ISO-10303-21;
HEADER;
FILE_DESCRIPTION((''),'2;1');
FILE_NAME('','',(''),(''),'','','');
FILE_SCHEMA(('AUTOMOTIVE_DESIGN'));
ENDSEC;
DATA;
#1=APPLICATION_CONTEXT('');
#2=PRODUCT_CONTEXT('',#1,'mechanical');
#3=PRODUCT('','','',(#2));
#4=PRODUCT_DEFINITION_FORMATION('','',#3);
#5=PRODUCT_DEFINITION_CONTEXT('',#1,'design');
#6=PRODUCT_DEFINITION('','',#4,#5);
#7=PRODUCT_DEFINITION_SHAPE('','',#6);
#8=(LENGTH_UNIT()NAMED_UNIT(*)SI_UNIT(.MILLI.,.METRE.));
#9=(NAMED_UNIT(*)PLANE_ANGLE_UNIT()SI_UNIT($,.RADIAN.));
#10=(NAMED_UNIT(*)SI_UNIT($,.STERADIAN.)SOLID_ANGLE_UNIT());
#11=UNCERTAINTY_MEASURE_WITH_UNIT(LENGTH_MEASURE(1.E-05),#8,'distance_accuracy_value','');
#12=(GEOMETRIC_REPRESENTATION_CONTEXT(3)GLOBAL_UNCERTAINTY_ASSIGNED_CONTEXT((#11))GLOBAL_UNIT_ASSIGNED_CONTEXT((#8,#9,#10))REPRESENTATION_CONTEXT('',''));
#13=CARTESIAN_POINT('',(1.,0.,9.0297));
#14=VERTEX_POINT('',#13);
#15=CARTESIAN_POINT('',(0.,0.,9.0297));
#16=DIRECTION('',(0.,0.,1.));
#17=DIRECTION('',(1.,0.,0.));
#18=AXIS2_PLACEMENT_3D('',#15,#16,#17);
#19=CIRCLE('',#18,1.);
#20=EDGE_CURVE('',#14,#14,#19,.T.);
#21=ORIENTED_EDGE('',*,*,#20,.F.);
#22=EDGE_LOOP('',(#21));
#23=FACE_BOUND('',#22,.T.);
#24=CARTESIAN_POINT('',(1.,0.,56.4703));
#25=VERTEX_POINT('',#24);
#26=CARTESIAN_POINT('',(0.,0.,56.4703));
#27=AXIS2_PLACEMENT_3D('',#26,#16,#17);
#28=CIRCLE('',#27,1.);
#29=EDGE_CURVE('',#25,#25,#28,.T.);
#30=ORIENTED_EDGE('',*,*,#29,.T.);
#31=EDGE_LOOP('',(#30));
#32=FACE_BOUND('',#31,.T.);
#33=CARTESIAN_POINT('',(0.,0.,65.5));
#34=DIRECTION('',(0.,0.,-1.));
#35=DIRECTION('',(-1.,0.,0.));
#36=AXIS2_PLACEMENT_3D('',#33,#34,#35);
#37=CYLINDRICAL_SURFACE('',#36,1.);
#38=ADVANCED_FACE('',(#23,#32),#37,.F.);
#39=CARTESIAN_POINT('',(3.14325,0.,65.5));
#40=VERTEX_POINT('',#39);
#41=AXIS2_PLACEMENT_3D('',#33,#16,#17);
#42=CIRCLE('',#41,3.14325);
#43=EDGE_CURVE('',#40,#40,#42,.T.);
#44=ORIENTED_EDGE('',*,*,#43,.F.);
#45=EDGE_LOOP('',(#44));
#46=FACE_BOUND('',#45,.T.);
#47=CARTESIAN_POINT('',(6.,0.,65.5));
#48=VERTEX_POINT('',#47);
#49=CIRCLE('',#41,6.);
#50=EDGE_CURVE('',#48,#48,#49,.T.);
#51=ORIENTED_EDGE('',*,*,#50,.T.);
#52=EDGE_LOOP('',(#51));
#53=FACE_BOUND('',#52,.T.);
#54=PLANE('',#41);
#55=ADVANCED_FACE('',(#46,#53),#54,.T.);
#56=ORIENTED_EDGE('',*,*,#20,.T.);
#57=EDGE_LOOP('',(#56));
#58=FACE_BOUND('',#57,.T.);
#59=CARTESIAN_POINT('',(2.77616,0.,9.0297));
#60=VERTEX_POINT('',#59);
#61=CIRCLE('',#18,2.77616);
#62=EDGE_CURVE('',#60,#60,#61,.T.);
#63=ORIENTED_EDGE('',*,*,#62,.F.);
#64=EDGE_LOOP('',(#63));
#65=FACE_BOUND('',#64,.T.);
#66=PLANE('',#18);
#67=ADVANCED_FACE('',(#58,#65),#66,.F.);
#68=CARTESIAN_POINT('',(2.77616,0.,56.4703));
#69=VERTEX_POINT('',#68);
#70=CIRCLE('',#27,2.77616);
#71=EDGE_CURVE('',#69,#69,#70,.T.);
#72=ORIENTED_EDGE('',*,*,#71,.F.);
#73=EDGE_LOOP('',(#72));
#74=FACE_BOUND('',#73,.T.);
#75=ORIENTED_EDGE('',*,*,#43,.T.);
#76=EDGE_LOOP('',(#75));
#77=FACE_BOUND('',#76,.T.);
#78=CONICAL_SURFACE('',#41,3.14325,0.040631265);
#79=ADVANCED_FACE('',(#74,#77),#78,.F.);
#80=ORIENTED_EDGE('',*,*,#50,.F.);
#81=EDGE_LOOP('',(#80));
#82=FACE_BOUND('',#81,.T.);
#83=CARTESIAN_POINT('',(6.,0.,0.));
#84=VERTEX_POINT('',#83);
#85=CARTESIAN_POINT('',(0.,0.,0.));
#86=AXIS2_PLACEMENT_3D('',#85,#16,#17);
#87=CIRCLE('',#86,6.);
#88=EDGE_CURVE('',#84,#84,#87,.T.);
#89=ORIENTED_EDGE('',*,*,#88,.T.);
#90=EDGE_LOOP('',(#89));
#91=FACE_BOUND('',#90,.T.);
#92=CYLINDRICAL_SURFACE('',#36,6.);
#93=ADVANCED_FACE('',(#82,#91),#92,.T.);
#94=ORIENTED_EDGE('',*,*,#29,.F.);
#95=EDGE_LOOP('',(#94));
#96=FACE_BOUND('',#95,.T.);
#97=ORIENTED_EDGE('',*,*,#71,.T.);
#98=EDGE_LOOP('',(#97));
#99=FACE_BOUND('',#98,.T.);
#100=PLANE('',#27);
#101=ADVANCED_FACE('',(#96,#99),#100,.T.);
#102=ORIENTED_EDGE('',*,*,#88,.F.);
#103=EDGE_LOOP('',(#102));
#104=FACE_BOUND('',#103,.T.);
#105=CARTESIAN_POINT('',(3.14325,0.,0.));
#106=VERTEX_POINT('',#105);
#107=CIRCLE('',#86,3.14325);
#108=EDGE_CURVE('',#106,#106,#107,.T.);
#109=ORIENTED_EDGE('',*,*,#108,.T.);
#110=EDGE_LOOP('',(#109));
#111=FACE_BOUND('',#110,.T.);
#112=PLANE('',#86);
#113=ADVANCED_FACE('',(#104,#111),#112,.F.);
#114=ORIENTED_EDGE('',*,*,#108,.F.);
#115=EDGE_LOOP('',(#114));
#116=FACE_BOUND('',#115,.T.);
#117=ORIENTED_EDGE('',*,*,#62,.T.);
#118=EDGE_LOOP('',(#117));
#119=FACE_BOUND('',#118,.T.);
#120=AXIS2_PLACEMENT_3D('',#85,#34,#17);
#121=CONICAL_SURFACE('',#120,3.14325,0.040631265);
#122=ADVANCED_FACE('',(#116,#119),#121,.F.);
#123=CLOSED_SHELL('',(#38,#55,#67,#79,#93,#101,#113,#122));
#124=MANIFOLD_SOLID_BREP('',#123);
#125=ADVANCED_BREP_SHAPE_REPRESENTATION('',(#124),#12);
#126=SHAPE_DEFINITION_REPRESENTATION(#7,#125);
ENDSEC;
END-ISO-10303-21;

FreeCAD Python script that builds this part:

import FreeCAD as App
import Part
import Sketcher

V = App.Vector

doc = App.newDocument("Part")
body = doc.addObject("PartDesign::Body", "Body")

# Sketch on XY plane
sketch1 = body.newObject("Sketcher::SketchObject", "Sketch")
sketch1.AttachmentSupport = (doc.getObject("XY_Plane"), [""])
sketch1.MapMode = "FlatFace"
sketch1.addGeometry(Part.Circle(V(0, 0, 0), V(0, 0, 1), 6), False)
sketch1.addConstraint([
    Sketcher.Constraint("Coincident", 0, 3, -1, 1),
    Sketcher.Constraint("Diameter", 0, 12.0),
])
pad1 = body.newObject("PartDesign::Pad", "Pad")
pad1.Profile = sketch1
pad1.Length = 65.5

# Sketch on XY plane
sketch2 = body.newObject("Sketcher::SketchObject", "Sketch001")
sketch2.AttachmentSupport = (doc.getObject("XY_Plane"), [""])
sketch2.MapMode = "FlatFace"
sketch2.addGeometry(Part.Circle(V(0, 0, 0), V(0, 0, 1), 1), False)
sketch2.addConstraint([
    Sketcher.Constraint("Coincident", 0, 3, -1, 1),
    Sketcher.Constraint("Diameter", 0, 2.0),
])
pocket1 = body.newObject("PartDesign::Pocket", "Pocket")
pocket1.Profile = sketch2
pocket1.Type = "ThroughAll"
pocket1.Reversed = True

# Sketch on XY plane
sketch3 = body.newObject("Sketcher::SketchObject", "Sketch002")
sketch3.AttachmentSupport = (doc.getObject("XY_Plane"), [""])
sketch3.MapMode = "FlatFace"
sketch3.addGeometry(Part.Circle(V(0, 0, 0), V(0, 0, 1), 3.14325), False)
sketch3.addConstraint([
    Sketcher.Constraint("Coincident", 0, 3, -1, 1),
    Sketcher.Constraint("Diameter", 0, 6.2865),
])
pocket2 = body.newObject("PartDesign::Pocket", "Pocket001")
pocket2.Profile = sketch3
pocket2.Length = 9.0297
pocket2.Reversed = True
pocket2.TaperAngle = -2.328

# Sketch on XY plane
sketch4 = body.newObject("Sketcher::SketchObject", "Sketch003")
sketch4.AttachmentSupport = (doc.getObject("XY_Plane"), [""])
sketch4.MapMode = "FlatFace"
sketch4.AttachmentOffset = App.Placement(V(0, 0, 65.5), App.Rotation())
sketch4.addGeometry(Part.Circle(V(0, 0, 0), V(0, 0, 1), 3.14325), False)
sketch4.addConstraint([
    Sketcher.Constraint("Coincident", 0, 3, -1, 1),
    Sketcher.Constraint("Diameter", 0, 6.2865),
])
pocket3 = body.newObject("PartDesign::Pocket", "Pocket002")
pocket3.Profile = sketch4
pocket3.Length = 9.0297
pocket3.TaperAngle = -2.328

doc.recompute()
